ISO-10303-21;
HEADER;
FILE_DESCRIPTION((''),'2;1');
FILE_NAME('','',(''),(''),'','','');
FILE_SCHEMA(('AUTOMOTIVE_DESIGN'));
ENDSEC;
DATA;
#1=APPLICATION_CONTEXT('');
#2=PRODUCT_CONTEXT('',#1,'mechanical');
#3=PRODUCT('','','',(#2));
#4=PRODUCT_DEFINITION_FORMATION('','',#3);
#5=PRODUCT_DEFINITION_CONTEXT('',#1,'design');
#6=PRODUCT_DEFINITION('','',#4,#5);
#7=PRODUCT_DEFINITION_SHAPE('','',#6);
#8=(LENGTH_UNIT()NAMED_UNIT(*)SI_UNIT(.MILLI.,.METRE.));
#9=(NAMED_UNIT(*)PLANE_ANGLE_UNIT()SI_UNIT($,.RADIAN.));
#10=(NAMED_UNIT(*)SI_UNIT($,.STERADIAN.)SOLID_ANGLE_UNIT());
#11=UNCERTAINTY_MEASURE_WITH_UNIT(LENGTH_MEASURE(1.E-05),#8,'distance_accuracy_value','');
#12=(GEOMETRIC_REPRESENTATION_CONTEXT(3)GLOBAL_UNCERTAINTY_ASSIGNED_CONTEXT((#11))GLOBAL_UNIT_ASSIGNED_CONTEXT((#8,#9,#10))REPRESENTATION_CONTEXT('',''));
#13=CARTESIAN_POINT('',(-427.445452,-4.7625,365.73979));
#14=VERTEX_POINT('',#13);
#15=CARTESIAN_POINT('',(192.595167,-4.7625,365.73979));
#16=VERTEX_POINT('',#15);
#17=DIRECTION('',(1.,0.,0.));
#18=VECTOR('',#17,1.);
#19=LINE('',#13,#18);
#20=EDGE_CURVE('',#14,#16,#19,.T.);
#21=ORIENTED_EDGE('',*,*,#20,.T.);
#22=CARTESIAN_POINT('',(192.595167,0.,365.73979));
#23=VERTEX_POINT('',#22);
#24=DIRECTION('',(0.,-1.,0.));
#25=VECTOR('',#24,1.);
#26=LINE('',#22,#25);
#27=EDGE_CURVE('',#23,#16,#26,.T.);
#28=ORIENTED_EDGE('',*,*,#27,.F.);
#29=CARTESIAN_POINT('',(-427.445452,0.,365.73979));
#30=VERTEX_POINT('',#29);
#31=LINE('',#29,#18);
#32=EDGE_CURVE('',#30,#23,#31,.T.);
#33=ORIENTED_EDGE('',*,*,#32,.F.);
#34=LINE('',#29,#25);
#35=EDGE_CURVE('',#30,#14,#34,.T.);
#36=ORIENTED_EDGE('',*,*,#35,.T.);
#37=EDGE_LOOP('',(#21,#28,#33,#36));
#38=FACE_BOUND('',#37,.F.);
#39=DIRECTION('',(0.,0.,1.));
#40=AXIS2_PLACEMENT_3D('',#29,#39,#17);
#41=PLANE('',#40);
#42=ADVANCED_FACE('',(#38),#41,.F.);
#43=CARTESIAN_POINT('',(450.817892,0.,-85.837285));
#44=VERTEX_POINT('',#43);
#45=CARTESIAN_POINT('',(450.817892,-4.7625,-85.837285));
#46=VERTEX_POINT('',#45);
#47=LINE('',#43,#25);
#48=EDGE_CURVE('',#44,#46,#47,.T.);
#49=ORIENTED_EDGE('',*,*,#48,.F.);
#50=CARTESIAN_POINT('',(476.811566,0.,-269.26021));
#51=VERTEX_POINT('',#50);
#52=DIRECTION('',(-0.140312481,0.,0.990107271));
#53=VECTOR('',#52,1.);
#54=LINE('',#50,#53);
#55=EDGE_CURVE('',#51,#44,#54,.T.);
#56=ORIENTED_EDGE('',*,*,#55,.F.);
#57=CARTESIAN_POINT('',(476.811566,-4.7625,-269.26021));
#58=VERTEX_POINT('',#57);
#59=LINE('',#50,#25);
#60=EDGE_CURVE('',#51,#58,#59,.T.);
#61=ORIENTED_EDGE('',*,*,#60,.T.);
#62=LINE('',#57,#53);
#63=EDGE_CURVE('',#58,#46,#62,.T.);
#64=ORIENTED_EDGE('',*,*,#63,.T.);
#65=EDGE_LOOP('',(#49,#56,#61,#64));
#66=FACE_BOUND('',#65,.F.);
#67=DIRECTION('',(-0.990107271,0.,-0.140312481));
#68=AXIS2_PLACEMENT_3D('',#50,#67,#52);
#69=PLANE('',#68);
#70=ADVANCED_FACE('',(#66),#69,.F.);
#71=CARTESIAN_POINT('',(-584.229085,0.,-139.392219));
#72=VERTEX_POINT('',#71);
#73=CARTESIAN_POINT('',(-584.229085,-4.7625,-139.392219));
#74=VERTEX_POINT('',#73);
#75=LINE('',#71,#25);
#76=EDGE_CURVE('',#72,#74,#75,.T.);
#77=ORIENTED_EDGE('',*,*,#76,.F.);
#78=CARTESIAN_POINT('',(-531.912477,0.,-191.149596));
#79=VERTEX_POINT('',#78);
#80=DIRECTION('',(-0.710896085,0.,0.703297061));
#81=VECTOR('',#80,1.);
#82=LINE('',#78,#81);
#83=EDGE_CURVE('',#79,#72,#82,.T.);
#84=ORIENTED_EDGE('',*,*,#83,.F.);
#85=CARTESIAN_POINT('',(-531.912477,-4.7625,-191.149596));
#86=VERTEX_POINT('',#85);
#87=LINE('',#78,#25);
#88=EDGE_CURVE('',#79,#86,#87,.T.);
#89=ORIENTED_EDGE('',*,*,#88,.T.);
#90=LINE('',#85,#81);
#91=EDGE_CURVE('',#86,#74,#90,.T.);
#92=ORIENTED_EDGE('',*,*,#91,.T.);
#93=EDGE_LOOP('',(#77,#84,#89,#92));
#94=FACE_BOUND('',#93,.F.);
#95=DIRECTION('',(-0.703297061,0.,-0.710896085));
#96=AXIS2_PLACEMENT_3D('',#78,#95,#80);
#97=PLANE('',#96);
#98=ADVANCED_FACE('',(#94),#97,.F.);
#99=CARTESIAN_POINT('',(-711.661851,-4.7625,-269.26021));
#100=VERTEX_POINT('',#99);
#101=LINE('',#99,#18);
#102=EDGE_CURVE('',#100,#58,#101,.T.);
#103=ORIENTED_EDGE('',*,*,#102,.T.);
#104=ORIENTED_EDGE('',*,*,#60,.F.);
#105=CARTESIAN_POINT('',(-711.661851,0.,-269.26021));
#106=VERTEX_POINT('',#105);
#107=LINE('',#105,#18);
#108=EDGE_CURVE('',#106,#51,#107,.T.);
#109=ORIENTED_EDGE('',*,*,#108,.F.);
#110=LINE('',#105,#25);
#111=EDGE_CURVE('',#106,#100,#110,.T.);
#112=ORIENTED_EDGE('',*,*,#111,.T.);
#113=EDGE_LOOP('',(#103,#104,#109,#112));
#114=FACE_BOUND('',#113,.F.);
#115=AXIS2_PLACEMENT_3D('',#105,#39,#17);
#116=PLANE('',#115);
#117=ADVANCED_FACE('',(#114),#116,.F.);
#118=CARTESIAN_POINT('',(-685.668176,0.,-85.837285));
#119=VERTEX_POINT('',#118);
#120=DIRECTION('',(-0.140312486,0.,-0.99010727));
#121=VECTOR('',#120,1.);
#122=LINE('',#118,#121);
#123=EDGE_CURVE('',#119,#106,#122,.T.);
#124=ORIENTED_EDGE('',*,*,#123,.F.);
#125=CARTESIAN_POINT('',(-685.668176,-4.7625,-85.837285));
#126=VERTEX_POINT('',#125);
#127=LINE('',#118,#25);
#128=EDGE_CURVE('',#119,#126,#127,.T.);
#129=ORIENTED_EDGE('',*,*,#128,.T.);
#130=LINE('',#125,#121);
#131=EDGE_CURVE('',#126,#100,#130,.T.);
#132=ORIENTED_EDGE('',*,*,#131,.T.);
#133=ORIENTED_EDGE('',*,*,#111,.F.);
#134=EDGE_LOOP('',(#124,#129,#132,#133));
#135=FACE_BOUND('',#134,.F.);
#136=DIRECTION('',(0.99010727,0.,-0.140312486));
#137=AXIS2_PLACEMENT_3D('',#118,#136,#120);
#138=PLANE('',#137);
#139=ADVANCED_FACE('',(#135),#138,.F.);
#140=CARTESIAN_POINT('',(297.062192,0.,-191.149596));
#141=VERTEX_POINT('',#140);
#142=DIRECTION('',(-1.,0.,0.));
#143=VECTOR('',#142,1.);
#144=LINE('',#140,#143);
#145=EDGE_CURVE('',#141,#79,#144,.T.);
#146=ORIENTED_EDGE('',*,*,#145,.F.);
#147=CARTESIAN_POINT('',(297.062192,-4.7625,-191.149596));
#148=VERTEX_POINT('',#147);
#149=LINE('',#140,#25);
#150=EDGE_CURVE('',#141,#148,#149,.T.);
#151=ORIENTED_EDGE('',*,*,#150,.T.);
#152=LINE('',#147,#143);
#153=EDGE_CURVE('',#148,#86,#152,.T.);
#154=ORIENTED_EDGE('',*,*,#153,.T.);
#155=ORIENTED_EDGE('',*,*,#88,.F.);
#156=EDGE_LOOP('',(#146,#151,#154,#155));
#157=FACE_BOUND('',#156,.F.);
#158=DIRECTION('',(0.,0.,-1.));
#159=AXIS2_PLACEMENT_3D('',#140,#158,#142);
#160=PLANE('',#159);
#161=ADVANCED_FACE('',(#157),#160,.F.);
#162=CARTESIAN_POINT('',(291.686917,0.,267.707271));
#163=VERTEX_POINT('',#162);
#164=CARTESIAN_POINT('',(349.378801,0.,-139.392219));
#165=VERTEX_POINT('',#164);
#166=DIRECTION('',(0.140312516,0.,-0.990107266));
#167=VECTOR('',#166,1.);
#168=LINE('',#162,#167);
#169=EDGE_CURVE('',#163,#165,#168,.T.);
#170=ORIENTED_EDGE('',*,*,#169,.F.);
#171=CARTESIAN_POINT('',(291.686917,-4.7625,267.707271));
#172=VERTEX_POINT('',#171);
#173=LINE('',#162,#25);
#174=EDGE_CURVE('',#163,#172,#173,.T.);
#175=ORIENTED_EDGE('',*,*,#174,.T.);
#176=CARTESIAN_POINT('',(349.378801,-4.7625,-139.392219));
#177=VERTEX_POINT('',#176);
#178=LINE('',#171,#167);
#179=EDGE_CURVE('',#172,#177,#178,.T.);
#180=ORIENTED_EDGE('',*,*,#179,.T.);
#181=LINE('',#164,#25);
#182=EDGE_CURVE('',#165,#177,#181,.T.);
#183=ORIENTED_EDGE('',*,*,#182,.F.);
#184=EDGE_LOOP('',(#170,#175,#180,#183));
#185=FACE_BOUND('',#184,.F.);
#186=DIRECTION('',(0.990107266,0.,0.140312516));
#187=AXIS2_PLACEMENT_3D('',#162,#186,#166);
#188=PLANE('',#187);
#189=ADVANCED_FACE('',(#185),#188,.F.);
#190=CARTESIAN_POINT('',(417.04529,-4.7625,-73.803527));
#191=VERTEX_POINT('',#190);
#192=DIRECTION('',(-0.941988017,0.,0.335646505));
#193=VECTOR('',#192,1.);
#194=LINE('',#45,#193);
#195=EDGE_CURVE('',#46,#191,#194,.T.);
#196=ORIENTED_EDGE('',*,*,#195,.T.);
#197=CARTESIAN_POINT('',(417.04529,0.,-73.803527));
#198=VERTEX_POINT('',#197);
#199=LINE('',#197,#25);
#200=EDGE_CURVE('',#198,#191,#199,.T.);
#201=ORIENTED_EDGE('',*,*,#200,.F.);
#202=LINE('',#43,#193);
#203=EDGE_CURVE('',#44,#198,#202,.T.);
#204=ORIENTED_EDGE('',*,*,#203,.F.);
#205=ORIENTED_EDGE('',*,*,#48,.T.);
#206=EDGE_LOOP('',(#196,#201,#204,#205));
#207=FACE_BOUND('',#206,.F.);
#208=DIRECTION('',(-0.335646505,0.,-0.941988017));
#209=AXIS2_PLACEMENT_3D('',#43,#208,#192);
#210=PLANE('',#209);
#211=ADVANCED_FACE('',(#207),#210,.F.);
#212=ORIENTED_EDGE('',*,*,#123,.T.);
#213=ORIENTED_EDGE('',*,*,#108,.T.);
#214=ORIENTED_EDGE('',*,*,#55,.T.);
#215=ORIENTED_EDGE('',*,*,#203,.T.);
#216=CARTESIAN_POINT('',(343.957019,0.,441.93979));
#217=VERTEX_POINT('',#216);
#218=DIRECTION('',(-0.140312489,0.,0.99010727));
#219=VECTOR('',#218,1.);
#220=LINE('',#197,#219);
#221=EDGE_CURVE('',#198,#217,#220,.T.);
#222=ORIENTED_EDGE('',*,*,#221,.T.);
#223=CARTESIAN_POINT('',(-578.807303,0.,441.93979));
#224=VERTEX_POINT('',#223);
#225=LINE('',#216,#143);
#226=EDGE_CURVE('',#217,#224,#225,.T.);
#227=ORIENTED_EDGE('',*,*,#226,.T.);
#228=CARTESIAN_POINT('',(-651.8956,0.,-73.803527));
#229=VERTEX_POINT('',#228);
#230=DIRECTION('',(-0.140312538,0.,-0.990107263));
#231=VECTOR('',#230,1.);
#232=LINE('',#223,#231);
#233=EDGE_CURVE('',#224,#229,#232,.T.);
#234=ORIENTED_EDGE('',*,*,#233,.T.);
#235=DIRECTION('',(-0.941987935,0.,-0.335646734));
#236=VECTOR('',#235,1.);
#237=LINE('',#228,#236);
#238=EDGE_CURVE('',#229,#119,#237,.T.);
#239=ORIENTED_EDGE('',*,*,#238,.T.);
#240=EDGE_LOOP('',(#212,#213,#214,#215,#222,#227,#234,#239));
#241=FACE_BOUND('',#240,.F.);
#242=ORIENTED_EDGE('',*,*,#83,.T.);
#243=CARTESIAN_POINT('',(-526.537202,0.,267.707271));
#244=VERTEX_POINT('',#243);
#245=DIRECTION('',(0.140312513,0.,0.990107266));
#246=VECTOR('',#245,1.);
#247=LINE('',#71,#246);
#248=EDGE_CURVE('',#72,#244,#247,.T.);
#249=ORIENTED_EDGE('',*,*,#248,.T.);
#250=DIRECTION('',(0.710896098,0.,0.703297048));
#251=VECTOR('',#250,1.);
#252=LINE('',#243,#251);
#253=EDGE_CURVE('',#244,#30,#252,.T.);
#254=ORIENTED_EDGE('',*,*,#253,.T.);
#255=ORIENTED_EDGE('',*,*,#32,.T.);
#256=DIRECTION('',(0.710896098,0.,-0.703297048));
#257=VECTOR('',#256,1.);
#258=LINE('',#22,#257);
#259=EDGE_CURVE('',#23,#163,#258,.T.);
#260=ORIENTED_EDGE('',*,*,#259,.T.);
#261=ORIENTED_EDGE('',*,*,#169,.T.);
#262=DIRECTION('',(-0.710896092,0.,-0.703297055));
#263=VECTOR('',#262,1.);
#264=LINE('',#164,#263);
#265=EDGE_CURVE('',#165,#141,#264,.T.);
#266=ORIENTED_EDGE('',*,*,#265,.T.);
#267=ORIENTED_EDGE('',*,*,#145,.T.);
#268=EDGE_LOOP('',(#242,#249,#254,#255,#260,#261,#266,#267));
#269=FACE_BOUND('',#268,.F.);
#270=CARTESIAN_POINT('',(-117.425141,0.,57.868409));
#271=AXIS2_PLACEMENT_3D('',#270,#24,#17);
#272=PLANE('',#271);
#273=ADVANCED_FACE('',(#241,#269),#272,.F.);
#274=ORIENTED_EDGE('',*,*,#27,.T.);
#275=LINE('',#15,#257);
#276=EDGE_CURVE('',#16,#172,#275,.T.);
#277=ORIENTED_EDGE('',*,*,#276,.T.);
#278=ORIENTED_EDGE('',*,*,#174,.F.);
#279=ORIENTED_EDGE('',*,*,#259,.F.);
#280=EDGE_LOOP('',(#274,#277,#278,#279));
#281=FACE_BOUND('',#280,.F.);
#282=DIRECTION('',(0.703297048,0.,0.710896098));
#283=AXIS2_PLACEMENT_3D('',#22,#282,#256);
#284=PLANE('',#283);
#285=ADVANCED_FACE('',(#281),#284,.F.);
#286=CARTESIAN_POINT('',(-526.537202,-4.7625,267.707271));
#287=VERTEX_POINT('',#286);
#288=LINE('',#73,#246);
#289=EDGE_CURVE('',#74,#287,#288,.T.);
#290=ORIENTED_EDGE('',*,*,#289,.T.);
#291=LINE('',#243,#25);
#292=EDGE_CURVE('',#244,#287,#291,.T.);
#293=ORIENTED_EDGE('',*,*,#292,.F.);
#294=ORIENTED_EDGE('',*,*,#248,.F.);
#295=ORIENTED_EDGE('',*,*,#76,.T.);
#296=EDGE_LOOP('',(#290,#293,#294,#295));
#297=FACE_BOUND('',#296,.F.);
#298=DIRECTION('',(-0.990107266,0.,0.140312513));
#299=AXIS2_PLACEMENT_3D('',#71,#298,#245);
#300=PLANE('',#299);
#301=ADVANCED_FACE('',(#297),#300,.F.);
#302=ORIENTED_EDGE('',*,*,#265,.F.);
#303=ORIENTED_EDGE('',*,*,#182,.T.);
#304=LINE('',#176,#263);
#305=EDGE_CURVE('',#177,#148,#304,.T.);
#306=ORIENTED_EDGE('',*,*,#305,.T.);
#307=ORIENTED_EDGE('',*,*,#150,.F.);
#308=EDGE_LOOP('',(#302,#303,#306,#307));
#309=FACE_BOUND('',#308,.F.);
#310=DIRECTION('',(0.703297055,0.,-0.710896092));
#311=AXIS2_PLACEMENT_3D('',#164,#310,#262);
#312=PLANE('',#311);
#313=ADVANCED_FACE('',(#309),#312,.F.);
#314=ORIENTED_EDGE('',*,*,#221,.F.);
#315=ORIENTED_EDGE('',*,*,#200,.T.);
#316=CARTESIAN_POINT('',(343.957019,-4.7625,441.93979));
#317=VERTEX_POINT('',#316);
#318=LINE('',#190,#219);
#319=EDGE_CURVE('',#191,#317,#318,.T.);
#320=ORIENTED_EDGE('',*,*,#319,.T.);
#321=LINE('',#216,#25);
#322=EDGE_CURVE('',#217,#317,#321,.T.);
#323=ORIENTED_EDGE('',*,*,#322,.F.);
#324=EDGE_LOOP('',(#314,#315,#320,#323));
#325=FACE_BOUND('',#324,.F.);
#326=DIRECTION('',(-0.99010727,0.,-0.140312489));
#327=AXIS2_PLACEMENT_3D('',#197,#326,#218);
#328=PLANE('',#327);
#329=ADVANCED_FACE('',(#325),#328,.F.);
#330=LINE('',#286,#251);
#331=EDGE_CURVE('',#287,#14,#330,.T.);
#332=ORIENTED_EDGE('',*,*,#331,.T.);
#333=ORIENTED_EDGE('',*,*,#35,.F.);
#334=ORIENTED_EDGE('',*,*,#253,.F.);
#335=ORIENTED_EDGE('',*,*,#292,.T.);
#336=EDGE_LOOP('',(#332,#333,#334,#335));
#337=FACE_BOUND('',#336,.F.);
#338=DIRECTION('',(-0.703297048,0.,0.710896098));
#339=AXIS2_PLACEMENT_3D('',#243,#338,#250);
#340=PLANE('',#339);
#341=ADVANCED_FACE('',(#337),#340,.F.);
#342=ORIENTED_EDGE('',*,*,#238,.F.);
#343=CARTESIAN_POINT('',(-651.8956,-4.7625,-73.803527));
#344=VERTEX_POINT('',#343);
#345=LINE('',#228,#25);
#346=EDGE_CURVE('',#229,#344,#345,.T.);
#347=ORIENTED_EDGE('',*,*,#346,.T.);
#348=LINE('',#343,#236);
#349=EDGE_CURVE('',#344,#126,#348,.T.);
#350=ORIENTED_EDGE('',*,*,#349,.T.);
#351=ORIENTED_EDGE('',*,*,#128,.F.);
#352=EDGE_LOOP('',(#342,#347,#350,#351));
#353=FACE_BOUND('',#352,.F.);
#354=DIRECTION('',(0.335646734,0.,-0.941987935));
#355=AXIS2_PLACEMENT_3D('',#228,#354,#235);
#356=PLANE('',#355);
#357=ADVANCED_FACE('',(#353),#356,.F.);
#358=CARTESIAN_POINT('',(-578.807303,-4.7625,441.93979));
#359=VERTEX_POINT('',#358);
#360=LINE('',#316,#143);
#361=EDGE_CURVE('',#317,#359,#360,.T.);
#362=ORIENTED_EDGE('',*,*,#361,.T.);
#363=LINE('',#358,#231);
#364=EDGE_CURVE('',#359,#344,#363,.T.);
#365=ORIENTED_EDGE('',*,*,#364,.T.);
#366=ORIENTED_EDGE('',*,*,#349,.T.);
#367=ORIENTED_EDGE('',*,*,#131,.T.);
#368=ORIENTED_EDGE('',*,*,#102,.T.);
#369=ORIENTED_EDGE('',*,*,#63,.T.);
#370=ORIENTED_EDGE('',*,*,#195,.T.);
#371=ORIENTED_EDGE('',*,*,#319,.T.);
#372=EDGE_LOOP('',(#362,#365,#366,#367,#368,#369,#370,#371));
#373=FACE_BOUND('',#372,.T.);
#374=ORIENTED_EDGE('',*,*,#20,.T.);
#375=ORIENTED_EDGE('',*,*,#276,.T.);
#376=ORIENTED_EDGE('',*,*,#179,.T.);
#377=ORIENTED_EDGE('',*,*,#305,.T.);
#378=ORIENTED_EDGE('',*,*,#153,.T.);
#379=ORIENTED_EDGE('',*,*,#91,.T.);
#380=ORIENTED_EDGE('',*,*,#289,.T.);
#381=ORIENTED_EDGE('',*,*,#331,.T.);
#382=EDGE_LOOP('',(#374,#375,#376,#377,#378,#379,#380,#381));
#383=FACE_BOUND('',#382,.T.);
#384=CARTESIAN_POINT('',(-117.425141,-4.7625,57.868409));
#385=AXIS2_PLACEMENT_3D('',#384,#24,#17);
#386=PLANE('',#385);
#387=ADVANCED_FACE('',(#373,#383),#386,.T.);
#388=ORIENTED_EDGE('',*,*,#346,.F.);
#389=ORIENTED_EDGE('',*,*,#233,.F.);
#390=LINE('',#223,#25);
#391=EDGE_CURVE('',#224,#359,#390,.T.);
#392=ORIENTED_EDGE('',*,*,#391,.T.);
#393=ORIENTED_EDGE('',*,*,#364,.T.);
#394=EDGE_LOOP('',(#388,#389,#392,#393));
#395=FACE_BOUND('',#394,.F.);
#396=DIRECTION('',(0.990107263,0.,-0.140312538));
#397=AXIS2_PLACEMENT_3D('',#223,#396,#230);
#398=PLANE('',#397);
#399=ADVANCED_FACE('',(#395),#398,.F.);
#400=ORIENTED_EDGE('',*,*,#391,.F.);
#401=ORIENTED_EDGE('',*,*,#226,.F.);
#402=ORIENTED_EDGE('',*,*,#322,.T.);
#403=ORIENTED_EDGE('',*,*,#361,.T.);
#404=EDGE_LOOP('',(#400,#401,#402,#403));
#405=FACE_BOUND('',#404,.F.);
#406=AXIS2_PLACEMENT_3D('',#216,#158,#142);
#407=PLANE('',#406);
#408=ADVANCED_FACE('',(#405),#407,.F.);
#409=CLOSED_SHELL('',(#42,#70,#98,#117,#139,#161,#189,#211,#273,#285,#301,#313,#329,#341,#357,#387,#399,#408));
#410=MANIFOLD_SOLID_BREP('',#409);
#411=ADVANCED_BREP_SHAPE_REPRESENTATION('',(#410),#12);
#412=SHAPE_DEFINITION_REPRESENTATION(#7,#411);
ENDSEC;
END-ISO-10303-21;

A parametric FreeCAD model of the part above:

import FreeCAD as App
import Part
import Sketcher
Q = App.Units.Quantity


def add_polygon(sketch, points):
    """Adds a closed chain of lines whose ends are joined by coincident constraints."""
    first, n = sketch.GeometryCount, len(points)
    for a, b in zip(points, points[1:] + points[:1]):
        sketch.addGeometry(Part.LineSegment(App.Vector(*a, 0), App.Vector(*b, 0)), False)
    for i in range(n):
        sketch.addConstraint(Sketcher.Constraint("Coincident", first + i, 2, first + (i + 1) % n, 1))

doc = App.newDocument("Part")
body = doc.addObject("PartDesign::Body", "Body")

sketch1 = body.newObject("Sketcher::SketchObject", "Sketch")
sketch1.AttachmentSupport = (doc.getObject("XZ_Plane"), [""])
sketch1.MapMode = "FlatFace"
add_polygon(sketch1, [(476.811566, -269.26021), (450.817892, -85.837285), (417.04529, -73.803527), (343.957019, 441.93979), (-578.807303, 441.93979), (-651.8956, -73.803527), (-685.668176, -85.837285), (-711.661851, -269.26021)])
add_polygon(sketch1, [(297.062192, -191.149596), (-531.912477, -191.149596), (-584.229085, -139.392219), (-526.537202, 267.707271), (-427.445452, 365.73979), (192.595167, 365.73979), (291.686917, 267.707271), (349.378801, -139.392219)])
sketch1.addConstraint([
    Sketcher.Constraint("Horizontal", 3),
    Sketcher.Constraint("Horizontal", 7),
    Sketcher.Constraint("Horizontal", 8),
    Sketcher.Constraint("Horizontal", 12),
    Sketcher.Constraint("DistanceY", 6, 2, 3, 2, Q("28 in")),
    Sketcher.Constraint("DistanceY", 11, 2, 3, 2, Q("3 in")),
    Sketcher.Constraint("DistanceX", 3, 2, 3, 1, Q("922.764322 mm")),
    Sketcher.Constraint("DistanceX", 8, 2, 8, 1, Q("828.974669 mm")),
    Sketcher.Constraint("DistanceX", 12, 1, 12, 2, Q("620.040619 mm")),
    Sketcher.Constraint("DistanceX", 4, 2, -1, 1, Q("651.8956 mm")),
    Sketcher.Constraint("DistanceX", 10, 2, -1, 1, Q("526.537202 mm")),
    Sketcher.Constraint("DistanceX", -1, 1, 14, 2, Q("349.378801 mm")),
    Sketcher.Constraint("DistanceX", 1, 2, 0, 2, Q("33.772602 mm")),
    Sketcher.Constraint("DistanceX", 5, 2, 8, 2, Q("153.755699 mm")),
    Sketcher.Constraint("DistanceX", 3, 2, 10, 2, Q("52.270101 mm")),
    Sketcher.Constraint("DistanceY", 4, 2, 10, 2, Q("341.510798 mm")),
    Sketcher.Constraint("DistanceX", 12, 2, 7, 2, Q("284.216399 mm")),
    Sketcher.Constraint("DistanceY", 1, 2, 13, 2, Q("341.510798 mm")),
    Sketcher.Constraint("DistanceX", 15, 2, 1, 2, Q("119.983098 mm")),
    Sketcher.Constraint("Distance", 0, Q("185.255609 mm")),
    Sketcher.Constraint("Distance", 4, Q("520.896408 mm")),
    Sketcher.Constraint("Distance", 5, Q("35.852451 mm")),
    Sketcher.Constraint("Distance", 6, Q("185.255609 mm")),
    Sketcher.Constraint("Distance", 11, Q("139.38992 mm")),
    Sketcher.Constraint("Distance", 13, Q("139.38992 mm")),
    Sketcher.Constraint("DistanceX", 7, 1, 7, 2, Q("1188.473417 mm")),
    Sketcher.Constraint("DistanceY", -1, 1, 2, 2, Q("441.93979 mm")),
    Sketcher.Constraint("DistanceY", 9, 2, -1, 1, Q("139.392219 mm")),
    Sketcher.Constraint("DistanceY", -1, 1, 13, 2, Q("267.707271 mm")),
    Sketcher.Constraint("DistanceY", 14, 2, -1, 1, Q("139.392219 mm")),
    Sketcher.Constraint("DistanceY", 8, 2, 4, 2, Q("117.346069 mm")),
    Sketcher.Constraint("DistanceX", 9, 2, 8, 2, Q("52.316608 mm")),
])
pad1 = body.newObject("PartDesign::Pad", "Pad")
pad1.Profile = sketch1
pad1.Length = Q("0.1875 in")

doc.recompute()
